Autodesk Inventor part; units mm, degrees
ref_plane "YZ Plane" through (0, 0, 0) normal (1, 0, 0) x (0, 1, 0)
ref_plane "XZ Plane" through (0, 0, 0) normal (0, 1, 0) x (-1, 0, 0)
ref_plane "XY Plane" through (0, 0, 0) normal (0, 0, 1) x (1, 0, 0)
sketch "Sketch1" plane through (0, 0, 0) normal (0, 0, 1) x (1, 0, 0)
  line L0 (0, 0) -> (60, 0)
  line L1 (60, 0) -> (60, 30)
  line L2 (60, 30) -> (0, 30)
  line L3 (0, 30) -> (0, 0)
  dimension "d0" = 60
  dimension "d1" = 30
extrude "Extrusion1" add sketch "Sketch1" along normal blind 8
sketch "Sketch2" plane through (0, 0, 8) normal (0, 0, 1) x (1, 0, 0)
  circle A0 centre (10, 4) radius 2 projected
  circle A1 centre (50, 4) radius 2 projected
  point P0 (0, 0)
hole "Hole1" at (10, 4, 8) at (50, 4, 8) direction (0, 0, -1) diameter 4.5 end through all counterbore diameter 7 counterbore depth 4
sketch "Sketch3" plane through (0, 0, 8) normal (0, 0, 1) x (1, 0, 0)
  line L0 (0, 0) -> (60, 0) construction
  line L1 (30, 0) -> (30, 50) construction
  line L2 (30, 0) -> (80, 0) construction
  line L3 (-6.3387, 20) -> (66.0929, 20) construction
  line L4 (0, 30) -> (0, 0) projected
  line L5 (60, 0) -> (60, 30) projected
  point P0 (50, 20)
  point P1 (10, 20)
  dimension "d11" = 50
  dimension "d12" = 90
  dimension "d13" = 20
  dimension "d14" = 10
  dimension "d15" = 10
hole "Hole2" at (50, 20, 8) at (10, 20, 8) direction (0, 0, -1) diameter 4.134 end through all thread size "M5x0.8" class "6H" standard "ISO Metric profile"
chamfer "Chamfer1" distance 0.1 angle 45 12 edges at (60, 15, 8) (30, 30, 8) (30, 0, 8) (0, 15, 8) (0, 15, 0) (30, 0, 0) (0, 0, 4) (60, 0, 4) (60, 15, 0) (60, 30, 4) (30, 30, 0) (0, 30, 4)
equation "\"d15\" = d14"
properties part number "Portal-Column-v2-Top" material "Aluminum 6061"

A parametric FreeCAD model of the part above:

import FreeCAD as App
import Part
import Sketcher

V = App.Vector
Q = App.Units.Quantity


def edges_at(feature, points):
    """Names of the edges that pass closest to the given points."""
    edges = feature.Shape.Edges
    near = lambda p: min(range(len(edges)), key=lambda i: edges[i].distToShape(Part.Vertex(*p))[0])
    return sorted({f"Edge{near(p) + 1}" for p in points})


def add_polygon(sketch, points):
    """Adds a closed chain of lines whose ends are joined by coincident constraints."""
    first, n = sketch.GeometryCount, len(points)
    for a, b in zip(points, points[1:] + points[:1]):
        sketch.addGeometry(Part.LineSegment(App.Vector(*a, 0), App.Vector(*b, 0)), False)
    for i in range(n):
        sketch.addConstraint(Sketcher.Constraint("Coincident", first + i, 2, first + (i + 1) % n, 1))

doc = App.newDocument("Part")
params = doc.addObject("Spreadsheet::Sheet", "Params")
for row, (alias, value) in enumerate([
    ("sketch1_width", "60 mm"),
    ("sketch1_height", "30 mm"),
    ("pad1_length", "8 mm"),
    ("sketch2_diameter", "4.5 mm"),
    ("hole_diameter", "4.5 mm"),
    ("hole_cbore_diameter", "7 mm"),
    ("hole_cbore_depth", "4 mm"),
    ("hole2_diameter", "4.134 mm"),
    ("chamfer_size", "0.1 mm"),
], start=1):
    params.set(f"A{row}", alias)
    params.set(f"B{row}", "=" + value)
    params.setAlias(f"B{row}", alias)

body = doc.addObject("PartDesign::Body", "Body")

sketch1 = doc.addObject("Sketcher::SketchObject", "Sketch")
body.addObject(sketch1)
sketch1.AttachmentSupport = (doc.XY_Plane, [""])
sketch1.MapMode = "FlatFace"
add_polygon(sketch1, [(0, 30), (0, 0), (60, 0), (60, 30)])
sketch1.addConstraint([
    Sketcher.Constraint("Vertical", 0),
    Sketcher.Constraint("Horizontal", 1),
    Sketcher.Constraint("Vertical", 2),
    Sketcher.Constraint("Horizontal", 3),
    Sketcher.Constraint("Coincident", 0, 2, -1, 1),
    Sketcher.Constraint("DistanceX", 1, 1, 1, 2, Q("60 mm")),
    Sketcher.Constraint("DistanceY", 0, 2, 0, 1, Q("30 mm")),
])
sketch1.setExpression("Constraints[9]", "Params.sketch1_width")
sketch1.setExpression("Constraints[10]", "Params.sketch1_height")
pad1 = doc.addObject("PartDesign::Pad", "Pad")
body.addObject(pad1)
pad1.Profile = sketch1
pad1.setExpression("Length", "Params.pad1_length")

sketch2 = doc.addObject("Sketcher::SketchObject", "Sketch001")
body.addObject(sketch2)
sketch2.AttachmentSupport = (doc.XY_Plane, [""])
sketch2.MapMode = "FlatFace"
sketch2.AttachmentOffset = App.Placement(V(0, 0, 8), App.Rotation())
sketch2.addGeometry([
    Part.Circle(V(10, 4, 0), V(0, 0, 1), 2.2),
    Part.Circle(V(50, 4, 0), V(0, 0, 1), 2.2),
], False)
sketch2.addConstraint([
    Sketcher.Constraint("Equal", 0, 1),
    Sketcher.Constraint("Horizontal", 0, 3, 1, 3),
    Sketcher.Constraint("Diameter", 0, Q("4.5 mm")),
    Sketcher.Constraint("DistanceX", -1, 1, 0, 3, Q("10 mm")),
    Sketcher.Constraint("DistanceY", -1, 1, 0, 3, Q("4 mm")),
    Sketcher.Constraint("DistanceX", -1, 1, 1, 3, Q("50 mm")),
])
sketch2.setExpression("Constraints[2]", "Params.sketch2_diameter")
doc.recompute()
hole = doc.addObject("PartDesign::Hole", "Hole")
body.addObject(hole)
hole.Profile = sketch2
hole.ThreadType = "None"
hole.setExpression("Diameter", "Params.hole_diameter")
hole.DepthType = "ThroughAll"
hole.HoleCutType = "Counterbore"
hole.setExpression("HoleCutDiameter", "Params.hole_cbore_diameter")
hole.setExpression("HoleCutDepth", "Params.hole_cbore_depth")

sketch3 = doc.addObject("Sketcher::SketchObject", "Sketch002")
body.addObject(sketch3)
sketch3.AttachmentSupport = (doc.XY_Plane, [""])
sketch3.MapMode = "FlatFace"
sketch3.AttachmentOffset = App.Placement(V(0, 0, 8), App.Rotation())
sketch3.addGeometry([
    Part.Circle(V(50, 20, 0), V(0, 0, 1), 2.1),
    Part.Circle(V(10, 20, 0), V(0, 0, 1), 2.1),
], False)
sketch3.addConstraint([
    Sketcher.Constraint("Equal", 0, 1),
    Sketcher.Constraint("Horizontal", 0, 3, 1, 3),
    Sketcher.Constraint("Diameter", 0, Q("4.134 mm")),
    Sketcher.Constraint("DistanceX", -1, 1, 0, 3, Q("50 mm")),
    Sketcher.Constraint("DistanceY", -1, 1, 0, 3, Q("20 mm")),
    Sketcher.Constraint("DistanceX", -1, 1, 1, 3, Q("10 mm")),
])
doc.recompute()
hole2 = doc.addObject("PartDesign::Hole", "Hole001")
body.addObject(hole2)
hole2.Profile = sketch3
hole2.ThreadType = "None"
hole2.setExpression("Diameter", "Params.hole2_diameter")
hole2.DepthType = "ThroughAll"
doc.recompute()

chamfer = doc.addObject("PartDesign::Chamfer", "Chamfer")
body.addObject(chamfer)
chamfer.Base = (hole2, edges_at(hole2, [
    (60, 15, 8),
    (30, 30, 8),
    (30, 0, 8),
    (0, 15, 8),
    (0, 15, 0),
    (30, 0, 0),
    (0, 0, 4),
    (60, 0, 4),
    (60, 15, 0),
    (60, 30, 4),
    (30, 30, 0),
    (0, 30, 4),
]))
chamfer.setExpression("Size", "Params.chamfer_size")

doc.recompute()
